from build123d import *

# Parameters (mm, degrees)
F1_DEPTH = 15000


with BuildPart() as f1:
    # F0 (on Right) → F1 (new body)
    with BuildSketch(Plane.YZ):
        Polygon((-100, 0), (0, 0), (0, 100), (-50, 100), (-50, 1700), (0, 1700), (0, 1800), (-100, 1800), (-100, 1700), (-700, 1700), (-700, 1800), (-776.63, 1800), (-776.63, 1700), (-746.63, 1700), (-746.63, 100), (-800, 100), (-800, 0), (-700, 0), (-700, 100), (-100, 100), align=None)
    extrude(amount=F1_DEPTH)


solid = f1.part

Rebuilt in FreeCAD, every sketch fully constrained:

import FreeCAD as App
import Part
import Sketcher

doc = App.newDocument("Part")
params = doc.addObject("Spreadsheet::Sheet", "Params")
for row, (alias, value) in enumerate([
    ("sketch1_width", "100 mm"),
    ("sketch1_width2", "50 mm"),
    ("sketch1_width3", "600 mm"),
    ("sketch1_width4", "30 mm"),
    ("sketch1_height", "1600 mm"),
    ("pad1_length", "15000 mm"),
], start=1):
    params.set(f"A{row}", alias)
    params.set(f"B{row}", "=" + value)
    params.setAlias(f"B{row}", alias)

body = doc.addObject("PartDesign::Body", "Body")

# Sketch on YZ plane
sketch1 = body.newObject("Sketcher::SketchObject", "Sketch")
sketch1.AttachmentSupport = (doc.getObject("YZ_Plane"), [""])
sketch1.MapMode = "FlatFace"
sketch1.addGeometry([
    Part.LineSegment(App.Vector(-100, 0, 0), App.Vector(0, 0, 0)),  # 0
    Part.LineSegment(App.Vector(0, 0, 0), App.Vector(0, 100, 0)),  # 1
    Part.LineSegment(App.Vector(0, 100, 0), App.Vector(-50, 100, 0)),  # 2
    Part.LineSegment(App.Vector(-50, 100, 0), App.Vector(-50, 1700, 0)),  # 3
    Part.LineSegment(App.Vector(-50, 1700, 0), App.Vector(0, 1700, 0)),  # 4
    Part.LineSegment(App.Vector(0, 1700, 0), App.Vector(0, 1800, 0)),  # 5
    Part.LineSegment(App.Vector(0, 1800, 0), App.Vector(-100, 1800, 0)),  # 6
    Part.LineSegment(App.Vector(-100, 1800, 0), App.Vector(-100, 1700, 0)),  # 7
    Part.LineSegment(App.Vector(-100, 1700, 0), App.Vector(-700, 1700, 0)),  # 8
    Part.LineSegment(App.Vector(-700, 1700, 0), App.Vector(-700, 1800, 0)),  # 9
    Part.LineSegment(App.Vector(-700, 1800, 0), App.Vector(-777, 1800, 0)),  # 10
    Part.LineSegment(App.Vector(-777, 1800, 0), App.Vector(-777, 1700, 0)),  # 11
    Part.LineSegment(App.Vector(-777, 1700, 0), App.Vector(-747, 1700, 0)),  # 12
    Part.LineSegment(App.Vector(-747, 1700, 0), App.Vector(-747, 100, 0)),  # 13
    Part.LineSegment(App.Vector(-747, 100, 0), App.Vector(-800, 100, 0)),  # 14
    Part.LineSegment(App.Vector(-800, 100, 0), App.Vector(-800, 0, 0)),  # 15
    Part.LineSegment(App.Vector(-800, 0, 0), App.Vector(-700, 0, 0)),  # 16
    Part.LineSegment(App.Vector(-700, 0, 0), App.Vector(-700, 100, 0)),  # 17
    Part.LineSegment(App.Vector(-700, 100, 0), App.Vector(-100, 100, 0)),  # 18
    Part.LineSegment(App.Vector(-100, 100, 0), App.Vector(-100, 0, 0)),  # 19
], False)
sketch1.addConstraint([
    Sketcher.Constraint("Coincident", 0, 2, 1, 1),
    Sketcher.Constraint("Coincident", 1, 2, 2, 1),
    Sketcher.Constraint("Coincident", 2, 2, 3, 1),
    Sketcher.Constraint("Coincident", 3, 2, 4, 1),
    Sketcher.Constraint("Coincident", 4, 2, 5, 1),
    Sketcher.Constraint("Coincident", 5, 2, 6, 1),
    Sketcher.Constraint("Coincident", 6, 2, 7, 1),
    Sketcher.Constraint("Coincident", 7, 2, 8, 1),
    Sketcher.Constraint("Coincident", 8, 2, 9, 1),
    Sketcher.Constraint("Coincident", 9, 2, 10, 1),
    Sketcher.Constraint("Coincident", 10, 2, 11, 1),
    Sketcher.Constraint("Coincident", 11, 2, 12, 1),
    Sketcher.Constraint("Coincident", 12, 2, 13, 1),
    Sketcher.Constraint("Coincident", 13, 2, 14, 1),
    Sketcher.Constraint("Coincident", 14, 2, 15, 1),
    Sketcher.Constraint("Coincident", 15, 2, 16, 1),
    Sketcher.Constraint("Coincident", 16, 2, 17, 1),
    Sketcher.Constraint("Coincident", 17, 2, 18, 1),
    Sketcher.Constraint("Coincident", 18, 2, 19, 1),
    Sketcher.Constraint("Coincident", 19, 2, 0, 1),
    Sketcher.Constraint("Horizontal", 0),
    Sketcher.Constraint("Vertical", 1),
    Sketcher.Constraint("Horizontal", 2),
    Sketcher.Constraint("Vertical", 3),
    Sketcher.Constraint("Horizontal", 4),
    Sketcher.Constraint("Vertical", 5),
    Sketcher.Constraint("Horizontal", 6),
    Sketcher.Constraint("Vertical", 7),
    Sketcher.Constraint("Horizontal", 8),
    Sketcher.Constraint("Vertical", 9),
    Sketcher.Constraint("Horizontal", 10),
    Sketcher.Constraint("Vertical", 11),
    Sketcher.Constraint("Horizontal", 12),
    Sketcher.Constraint("Vertical", 13),
    Sketcher.Constraint("Horizontal", 14),
    Sketcher.Constraint("Vertical", 15),
    Sketcher.Constraint("Horizontal", 16),
    Sketcher.Constraint("Vertical", 17),
    Sketcher.Constraint("Horizontal", 18),
    Sketcher.Constraint("Vertical", 19),
    Sketcher.Constraint("Coincident", 0, 2, -1, 1),
    Sketcher.Constraint("PointOnObject", 4, 2, -2),
    Sketcher.Constraint("PointOnObject", 15, 2, -1),
    Sketcher.Constraint("Horizontal", 4, 2, 7, 2),
    Sketcher.Constraint("Horizontal", 6, 2, 9, 2),
    Sketcher.Constraint("Horizontal", 8, 2, 11, 2),
    Sketcher.Constraint("Horizontal", 2, 2, 13, 2),
    Sketcher.Constraint("Horizontal", 14, 2, 17, 2),
    Sketcher.Constraint("Vertical", 9, 2, 16, 2),
    Sketcher.Constraint("Vertical", 7, 2, 18, 2),
    Sketcher.Constraint("Equal", 6, 16),
    Sketcher.Constraint("Equal", 16, 1),
    Sketcher.Constraint("Equal", 1, 5),
    Sketcher.Constraint("DistanceX", 0, 1, 0, 2, 100.0),
    Sketcher.Constraint("DistanceX", 2, 2, 2, 1, 50.0),
    Sketcher.Constraint("DistanceX", 8, 2, 8, 1, 600.0),
    Sketcher.Constraint("DistanceX", 12, 1, 12, 2, 30.0),
    Sketcher.Constraint("DistanceY", 3, 1, 3, 2, 1600.0),
    Sketcher.Constraint("DistanceX", 10, 2, 10, 1, 76.63),
])
sketch1.setExpression("Constraints[53]", "Params.sketch1_width")
sketch1.setExpression("Constraints[54]", "Params.sketch1_width2")
sketch1.setExpression("Constraints[55]", "Params.sketch1_width3")
sketch1.setExpression("Constraints[56]", "Params.sketch1_width4")
sketch1.setExpression("Constraints[57]", "Params.sketch1_height")
pad1 = body.newObject("PartDesign::Pad", "Pad")
pad1.Profile = sketch1
pad1.setExpression("Length", "Params.pad1_length")

doc.recompute()
